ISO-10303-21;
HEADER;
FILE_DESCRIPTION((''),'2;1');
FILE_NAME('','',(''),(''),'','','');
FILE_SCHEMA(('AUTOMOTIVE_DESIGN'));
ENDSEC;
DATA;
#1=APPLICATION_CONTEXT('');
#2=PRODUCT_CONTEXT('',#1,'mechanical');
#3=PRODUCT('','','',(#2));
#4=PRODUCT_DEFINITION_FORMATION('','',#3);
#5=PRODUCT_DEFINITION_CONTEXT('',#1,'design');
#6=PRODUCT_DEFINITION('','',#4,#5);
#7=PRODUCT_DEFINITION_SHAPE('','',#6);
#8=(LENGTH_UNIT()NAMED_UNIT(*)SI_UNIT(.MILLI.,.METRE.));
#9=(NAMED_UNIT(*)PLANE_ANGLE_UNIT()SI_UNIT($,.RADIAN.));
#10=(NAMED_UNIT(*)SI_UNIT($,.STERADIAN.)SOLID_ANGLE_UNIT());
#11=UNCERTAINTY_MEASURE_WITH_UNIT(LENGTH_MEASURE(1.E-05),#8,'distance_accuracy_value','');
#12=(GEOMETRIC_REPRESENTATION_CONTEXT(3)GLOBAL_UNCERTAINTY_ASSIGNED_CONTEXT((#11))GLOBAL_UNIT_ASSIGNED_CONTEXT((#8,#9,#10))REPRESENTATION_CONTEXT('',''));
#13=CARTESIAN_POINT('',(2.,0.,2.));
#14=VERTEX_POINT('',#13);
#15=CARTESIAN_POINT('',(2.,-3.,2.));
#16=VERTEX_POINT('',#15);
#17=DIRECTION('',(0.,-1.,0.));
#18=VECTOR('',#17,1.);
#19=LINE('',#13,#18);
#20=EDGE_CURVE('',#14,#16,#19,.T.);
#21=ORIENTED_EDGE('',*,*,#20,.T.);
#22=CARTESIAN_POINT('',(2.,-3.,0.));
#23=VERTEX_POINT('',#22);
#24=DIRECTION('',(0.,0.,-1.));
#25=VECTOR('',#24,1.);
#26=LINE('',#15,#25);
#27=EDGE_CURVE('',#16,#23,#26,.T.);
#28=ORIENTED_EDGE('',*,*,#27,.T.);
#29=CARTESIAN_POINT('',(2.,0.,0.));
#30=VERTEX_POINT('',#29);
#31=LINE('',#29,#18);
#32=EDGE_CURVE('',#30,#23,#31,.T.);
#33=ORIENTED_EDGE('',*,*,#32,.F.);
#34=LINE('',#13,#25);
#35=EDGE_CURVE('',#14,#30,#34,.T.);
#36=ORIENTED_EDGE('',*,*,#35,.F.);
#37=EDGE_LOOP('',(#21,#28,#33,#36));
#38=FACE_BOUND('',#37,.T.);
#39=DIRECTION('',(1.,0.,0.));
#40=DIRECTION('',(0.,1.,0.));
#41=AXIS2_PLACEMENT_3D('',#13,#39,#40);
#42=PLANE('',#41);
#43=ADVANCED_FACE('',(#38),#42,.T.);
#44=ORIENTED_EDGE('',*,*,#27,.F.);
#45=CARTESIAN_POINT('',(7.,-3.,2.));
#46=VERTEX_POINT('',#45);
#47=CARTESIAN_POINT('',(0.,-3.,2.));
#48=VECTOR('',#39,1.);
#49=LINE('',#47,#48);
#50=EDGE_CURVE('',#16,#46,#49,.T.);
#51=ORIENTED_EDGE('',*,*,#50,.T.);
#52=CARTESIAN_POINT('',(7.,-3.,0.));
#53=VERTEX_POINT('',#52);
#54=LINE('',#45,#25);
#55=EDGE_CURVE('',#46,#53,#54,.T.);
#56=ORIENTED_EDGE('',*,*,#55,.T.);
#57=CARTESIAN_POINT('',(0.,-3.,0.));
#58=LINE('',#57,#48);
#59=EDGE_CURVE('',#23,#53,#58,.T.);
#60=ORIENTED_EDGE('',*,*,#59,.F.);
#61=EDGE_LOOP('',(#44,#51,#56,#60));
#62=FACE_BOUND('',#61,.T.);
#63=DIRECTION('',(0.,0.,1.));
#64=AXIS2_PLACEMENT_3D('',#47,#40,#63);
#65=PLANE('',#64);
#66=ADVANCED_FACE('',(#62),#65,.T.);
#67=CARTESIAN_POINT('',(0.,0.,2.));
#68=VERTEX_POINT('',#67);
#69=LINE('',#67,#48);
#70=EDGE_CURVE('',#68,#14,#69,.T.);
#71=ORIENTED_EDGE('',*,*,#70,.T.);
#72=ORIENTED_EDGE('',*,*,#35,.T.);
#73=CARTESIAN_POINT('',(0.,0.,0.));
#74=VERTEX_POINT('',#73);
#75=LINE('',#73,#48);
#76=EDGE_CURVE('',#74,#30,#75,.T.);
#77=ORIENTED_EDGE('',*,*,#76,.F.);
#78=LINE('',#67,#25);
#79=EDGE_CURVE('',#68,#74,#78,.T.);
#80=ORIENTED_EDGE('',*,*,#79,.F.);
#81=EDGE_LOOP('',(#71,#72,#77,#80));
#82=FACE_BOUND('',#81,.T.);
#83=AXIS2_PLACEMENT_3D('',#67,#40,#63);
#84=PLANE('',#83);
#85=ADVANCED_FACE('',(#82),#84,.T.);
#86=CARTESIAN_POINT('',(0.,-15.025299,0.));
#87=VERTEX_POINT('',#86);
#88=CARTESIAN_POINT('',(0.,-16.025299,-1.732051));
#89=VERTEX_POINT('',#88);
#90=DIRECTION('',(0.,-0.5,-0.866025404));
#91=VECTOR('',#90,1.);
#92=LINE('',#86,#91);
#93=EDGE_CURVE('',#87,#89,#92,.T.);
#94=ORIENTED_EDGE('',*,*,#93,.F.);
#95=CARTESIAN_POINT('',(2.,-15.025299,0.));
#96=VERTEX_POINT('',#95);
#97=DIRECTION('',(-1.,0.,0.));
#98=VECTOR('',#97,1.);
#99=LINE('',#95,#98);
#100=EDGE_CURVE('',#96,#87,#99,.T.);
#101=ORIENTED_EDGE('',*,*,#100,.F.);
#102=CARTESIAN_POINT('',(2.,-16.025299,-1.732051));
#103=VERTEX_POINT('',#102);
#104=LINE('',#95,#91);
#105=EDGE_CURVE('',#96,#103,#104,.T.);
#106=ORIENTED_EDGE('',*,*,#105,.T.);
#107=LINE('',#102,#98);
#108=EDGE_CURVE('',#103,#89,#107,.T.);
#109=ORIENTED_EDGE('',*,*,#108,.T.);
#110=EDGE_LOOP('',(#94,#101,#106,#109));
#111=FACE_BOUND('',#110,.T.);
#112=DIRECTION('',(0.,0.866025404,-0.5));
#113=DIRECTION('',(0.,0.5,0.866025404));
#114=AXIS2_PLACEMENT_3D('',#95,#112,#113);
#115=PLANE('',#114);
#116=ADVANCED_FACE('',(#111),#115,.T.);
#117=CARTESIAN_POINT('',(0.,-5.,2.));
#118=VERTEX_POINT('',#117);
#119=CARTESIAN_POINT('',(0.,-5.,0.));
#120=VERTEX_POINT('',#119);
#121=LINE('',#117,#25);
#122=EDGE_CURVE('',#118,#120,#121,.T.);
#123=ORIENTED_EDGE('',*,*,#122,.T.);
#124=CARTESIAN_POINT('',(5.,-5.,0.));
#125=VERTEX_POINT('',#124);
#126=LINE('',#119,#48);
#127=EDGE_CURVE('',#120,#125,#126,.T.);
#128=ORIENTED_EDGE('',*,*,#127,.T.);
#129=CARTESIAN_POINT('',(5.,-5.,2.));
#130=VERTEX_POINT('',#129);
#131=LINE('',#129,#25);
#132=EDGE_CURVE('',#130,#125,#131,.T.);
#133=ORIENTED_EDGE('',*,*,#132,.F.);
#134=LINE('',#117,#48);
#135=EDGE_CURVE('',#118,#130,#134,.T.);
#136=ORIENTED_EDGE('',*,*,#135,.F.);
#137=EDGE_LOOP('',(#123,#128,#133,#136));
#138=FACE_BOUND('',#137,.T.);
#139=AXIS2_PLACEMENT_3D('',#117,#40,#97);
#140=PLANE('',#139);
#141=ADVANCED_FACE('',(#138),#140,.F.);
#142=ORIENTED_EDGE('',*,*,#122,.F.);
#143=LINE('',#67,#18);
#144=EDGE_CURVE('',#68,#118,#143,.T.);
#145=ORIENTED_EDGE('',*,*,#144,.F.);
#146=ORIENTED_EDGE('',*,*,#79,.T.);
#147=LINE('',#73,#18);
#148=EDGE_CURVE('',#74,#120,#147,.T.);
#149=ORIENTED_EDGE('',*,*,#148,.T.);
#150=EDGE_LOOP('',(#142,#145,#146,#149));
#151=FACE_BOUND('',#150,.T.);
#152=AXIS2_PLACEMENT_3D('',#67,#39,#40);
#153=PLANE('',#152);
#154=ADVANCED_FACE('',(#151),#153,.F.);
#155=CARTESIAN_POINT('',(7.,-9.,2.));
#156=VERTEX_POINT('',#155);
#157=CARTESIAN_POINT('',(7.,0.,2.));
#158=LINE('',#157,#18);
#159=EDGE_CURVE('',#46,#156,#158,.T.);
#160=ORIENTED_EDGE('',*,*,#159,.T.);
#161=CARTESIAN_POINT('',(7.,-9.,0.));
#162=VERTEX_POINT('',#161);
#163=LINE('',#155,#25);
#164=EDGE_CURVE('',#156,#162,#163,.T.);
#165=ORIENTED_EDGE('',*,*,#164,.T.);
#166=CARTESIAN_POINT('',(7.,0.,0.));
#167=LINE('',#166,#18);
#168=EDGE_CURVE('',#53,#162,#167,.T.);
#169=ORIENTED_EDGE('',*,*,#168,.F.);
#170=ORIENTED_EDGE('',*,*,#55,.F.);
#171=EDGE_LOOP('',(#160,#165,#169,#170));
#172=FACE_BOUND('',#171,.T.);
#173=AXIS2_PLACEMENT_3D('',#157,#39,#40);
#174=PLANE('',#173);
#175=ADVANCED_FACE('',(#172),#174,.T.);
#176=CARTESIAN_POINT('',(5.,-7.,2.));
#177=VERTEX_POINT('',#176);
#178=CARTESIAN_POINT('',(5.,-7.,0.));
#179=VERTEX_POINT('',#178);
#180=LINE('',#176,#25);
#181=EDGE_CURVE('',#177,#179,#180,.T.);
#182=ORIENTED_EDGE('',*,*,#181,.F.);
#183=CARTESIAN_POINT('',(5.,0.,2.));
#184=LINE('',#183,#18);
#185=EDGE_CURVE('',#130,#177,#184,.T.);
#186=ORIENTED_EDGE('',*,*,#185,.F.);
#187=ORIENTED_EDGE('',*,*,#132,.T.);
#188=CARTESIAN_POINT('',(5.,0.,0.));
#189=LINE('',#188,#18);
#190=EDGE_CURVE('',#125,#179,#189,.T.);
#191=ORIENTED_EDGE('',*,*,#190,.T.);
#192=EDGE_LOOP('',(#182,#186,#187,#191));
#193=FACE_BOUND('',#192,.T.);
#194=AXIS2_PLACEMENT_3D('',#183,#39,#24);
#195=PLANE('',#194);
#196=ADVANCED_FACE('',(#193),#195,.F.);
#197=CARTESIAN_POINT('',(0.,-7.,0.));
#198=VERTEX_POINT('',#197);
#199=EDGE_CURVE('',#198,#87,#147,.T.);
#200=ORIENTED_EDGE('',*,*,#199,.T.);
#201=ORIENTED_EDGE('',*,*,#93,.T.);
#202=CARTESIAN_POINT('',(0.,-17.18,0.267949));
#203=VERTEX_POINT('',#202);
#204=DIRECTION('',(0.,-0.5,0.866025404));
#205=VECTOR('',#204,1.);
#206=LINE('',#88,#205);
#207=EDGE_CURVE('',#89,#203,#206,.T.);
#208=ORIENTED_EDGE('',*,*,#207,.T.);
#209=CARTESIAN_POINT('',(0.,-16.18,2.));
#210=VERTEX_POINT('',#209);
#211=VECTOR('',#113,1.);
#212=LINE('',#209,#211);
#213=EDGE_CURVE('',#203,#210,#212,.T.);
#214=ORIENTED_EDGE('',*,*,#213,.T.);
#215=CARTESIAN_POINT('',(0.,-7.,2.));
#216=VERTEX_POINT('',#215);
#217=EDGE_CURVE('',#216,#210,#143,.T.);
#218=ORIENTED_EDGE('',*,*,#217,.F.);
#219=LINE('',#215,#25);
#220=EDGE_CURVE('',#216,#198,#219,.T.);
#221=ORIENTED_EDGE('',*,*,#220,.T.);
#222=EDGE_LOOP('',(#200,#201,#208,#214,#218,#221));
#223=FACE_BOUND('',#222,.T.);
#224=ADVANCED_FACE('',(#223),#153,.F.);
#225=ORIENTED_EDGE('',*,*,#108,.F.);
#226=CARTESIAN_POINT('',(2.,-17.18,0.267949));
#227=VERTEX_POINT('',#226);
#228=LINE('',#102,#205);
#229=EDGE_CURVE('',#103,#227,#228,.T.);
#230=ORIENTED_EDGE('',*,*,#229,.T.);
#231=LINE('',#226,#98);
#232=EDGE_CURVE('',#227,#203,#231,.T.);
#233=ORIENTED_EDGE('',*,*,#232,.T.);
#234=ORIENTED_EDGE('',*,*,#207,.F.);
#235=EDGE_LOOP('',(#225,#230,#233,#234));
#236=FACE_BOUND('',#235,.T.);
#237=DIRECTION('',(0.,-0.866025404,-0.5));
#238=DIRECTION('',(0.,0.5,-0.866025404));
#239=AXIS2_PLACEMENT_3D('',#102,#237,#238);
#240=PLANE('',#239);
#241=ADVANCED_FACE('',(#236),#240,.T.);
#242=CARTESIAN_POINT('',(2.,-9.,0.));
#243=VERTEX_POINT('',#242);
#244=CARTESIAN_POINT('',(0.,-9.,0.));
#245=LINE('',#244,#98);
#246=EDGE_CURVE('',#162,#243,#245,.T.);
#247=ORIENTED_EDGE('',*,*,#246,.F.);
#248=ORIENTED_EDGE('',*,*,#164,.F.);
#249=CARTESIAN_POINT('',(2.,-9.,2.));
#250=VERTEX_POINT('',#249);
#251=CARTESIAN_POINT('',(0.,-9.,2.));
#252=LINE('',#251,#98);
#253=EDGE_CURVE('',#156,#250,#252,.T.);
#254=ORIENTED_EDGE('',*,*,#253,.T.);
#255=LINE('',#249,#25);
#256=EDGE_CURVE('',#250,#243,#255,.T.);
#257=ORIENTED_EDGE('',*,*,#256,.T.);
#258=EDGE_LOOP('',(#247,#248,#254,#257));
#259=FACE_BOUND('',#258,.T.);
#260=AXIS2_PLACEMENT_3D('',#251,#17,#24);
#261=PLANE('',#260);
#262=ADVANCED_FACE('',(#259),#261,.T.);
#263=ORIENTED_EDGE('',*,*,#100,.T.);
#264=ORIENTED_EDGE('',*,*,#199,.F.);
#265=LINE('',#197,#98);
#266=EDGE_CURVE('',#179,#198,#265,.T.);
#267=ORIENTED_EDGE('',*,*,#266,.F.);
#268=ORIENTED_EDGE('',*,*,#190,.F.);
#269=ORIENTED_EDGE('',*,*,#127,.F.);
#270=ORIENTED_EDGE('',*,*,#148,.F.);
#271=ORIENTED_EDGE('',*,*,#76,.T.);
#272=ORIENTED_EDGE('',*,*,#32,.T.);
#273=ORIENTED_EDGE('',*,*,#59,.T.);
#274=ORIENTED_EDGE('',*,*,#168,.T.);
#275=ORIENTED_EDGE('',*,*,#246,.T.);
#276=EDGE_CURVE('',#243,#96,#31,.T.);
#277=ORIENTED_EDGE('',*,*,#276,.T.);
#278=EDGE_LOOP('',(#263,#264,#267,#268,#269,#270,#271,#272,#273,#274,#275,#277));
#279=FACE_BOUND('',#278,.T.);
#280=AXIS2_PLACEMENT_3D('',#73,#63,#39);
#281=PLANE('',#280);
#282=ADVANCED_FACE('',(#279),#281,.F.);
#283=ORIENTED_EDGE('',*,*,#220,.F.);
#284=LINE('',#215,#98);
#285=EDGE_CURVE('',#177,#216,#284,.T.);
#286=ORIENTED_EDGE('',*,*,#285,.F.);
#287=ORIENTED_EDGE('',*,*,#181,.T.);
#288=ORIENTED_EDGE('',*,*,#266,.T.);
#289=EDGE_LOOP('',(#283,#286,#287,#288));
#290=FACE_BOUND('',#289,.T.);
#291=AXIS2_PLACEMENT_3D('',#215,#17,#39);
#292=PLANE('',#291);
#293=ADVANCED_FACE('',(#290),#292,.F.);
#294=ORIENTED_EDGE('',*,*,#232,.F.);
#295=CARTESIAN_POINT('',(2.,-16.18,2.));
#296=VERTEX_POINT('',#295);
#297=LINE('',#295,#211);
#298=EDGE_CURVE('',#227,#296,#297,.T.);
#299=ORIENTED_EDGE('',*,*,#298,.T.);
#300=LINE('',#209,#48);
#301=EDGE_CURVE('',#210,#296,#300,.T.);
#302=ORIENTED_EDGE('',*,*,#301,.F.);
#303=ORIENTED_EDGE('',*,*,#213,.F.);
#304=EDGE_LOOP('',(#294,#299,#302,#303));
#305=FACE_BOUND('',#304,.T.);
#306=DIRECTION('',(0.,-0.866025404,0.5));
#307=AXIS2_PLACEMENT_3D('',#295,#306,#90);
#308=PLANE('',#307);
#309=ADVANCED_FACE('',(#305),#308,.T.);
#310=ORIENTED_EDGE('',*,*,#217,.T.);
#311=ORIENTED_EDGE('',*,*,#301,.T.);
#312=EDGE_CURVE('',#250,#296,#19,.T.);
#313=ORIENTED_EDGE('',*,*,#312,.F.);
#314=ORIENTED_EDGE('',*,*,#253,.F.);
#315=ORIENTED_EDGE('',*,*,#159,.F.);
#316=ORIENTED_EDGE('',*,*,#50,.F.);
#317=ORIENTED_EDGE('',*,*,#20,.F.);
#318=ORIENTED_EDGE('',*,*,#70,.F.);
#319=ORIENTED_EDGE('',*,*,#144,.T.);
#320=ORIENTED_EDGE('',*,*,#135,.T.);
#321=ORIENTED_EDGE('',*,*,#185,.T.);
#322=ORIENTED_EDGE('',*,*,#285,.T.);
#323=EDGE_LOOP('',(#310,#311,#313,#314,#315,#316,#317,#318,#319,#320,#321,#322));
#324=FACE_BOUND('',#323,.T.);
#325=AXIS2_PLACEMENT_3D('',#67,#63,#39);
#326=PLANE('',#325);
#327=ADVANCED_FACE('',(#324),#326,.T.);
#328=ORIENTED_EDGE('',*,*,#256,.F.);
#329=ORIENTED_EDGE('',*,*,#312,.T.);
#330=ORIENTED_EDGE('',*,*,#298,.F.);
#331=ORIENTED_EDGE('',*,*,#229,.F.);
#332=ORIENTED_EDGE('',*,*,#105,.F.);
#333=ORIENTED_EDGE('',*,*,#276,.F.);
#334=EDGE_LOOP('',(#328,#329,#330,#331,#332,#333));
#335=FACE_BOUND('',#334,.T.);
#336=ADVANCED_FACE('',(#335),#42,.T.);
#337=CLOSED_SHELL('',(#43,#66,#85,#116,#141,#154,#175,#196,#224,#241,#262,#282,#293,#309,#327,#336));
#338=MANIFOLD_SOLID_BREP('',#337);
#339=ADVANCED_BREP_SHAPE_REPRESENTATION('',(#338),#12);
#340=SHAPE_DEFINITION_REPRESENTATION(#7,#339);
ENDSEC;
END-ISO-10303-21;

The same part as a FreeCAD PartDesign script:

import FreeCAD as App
import Part
import Sketcher

V = App.Vector
Q = App.Units.Quantity

doc = App.newDocument("Part")
body = doc.addObject("PartDesign::Body", "Body")

sketch1 = doc.addObject("Sketcher::SketchObject", "Sketch")
body.addObject(sketch1)
sketch1.AttachmentSupport = (doc.XY_Plane, [""])
sketch1.MapMode = "FlatFace"
sketch1.addGeometry([
    Part.LineSegment(V(0, -16.18, 0), V(2, -16.18, 0)),
    Part.LineSegment(V(2, -16.18, 0), V(2, -9, 0)),
    Part.LineSegment(V(2, -9, 0), V(7, -9, 0)),
    Part.LineSegment(V(7, -9, 0), V(7, -3, 0)),
    Part.LineSegment(V(7, -3, 0), V(2, -3, 0)),
    Part.LineSegment(V(2, -3, 0), V(2, 0, 0)),
    Part.LineSegment(V(2, 0, 0), V(0, 0, 0)),
    Part.LineSegment(V(0, 0, 0), V(0, -5, 0)),
    Part.LineSegment(V(0, -5, 0), V(5, -5, 0)),
    Part.LineSegment(V(5, -5, 0), V(5, -7, 0)),
    Part.LineSegment(V(5, -7, 0), V(0, -7, 0)),
    Part.LineSegment(V(0, -7, 0), V(0, -16.18, 0)),
], False)
sketch1.addConstraint([
    Sketcher.Constraint("Coincident", 0, 2, 1, 1),
    Sketcher.Constraint("Coincident", 1, 2, 2, 1),
    Sketcher.Constraint("Coincident", 2, 2, 3, 1),
    Sketcher.Constraint("Coincident", 3, 2, 4, 1),
    Sketcher.Constraint("Coincident", 4, 2, 5, 1),
    Sketcher.Constraint("Coincident", 5, 2, 6, 1),
    Sketcher.Constraint("Coincident", 6, 2, 7, 1),
    Sketcher.Constraint("Coincident", 7, 2, 8, 1),
    Sketcher.Constraint("Coincident", 8, 2, 9, 1),
    Sketcher.Constraint("Coincident", 9, 2, 10, 1),
    Sketcher.Constraint("Coincident", 10, 2, 11, 1),
    Sketcher.Constraint("Coincident", 11, 2, 0, 1),
    Sketcher.Constraint("Horizontal", 0),
    Sketcher.Constraint("Vertical", 1),
    Sketcher.Constraint("Horizontal", 2),
    Sketcher.Constraint("Vertical", 3),
    Sketcher.Constraint("Horizontal", 4),
    Sketcher.Constraint("Vertical", 5),
    Sketcher.Constraint("Horizontal", 6),
    Sketcher.Constraint("Vertical", 7),
    Sketcher.Constraint("Horizontal", 8),
    Sketcher.Constraint("Vertical", 9),
    Sketcher.Constraint("Horizontal", 10),
    Sketcher.Constraint("Vertical", 11),
    Sketcher.Constraint("Coincident", 6, 2, -1, 1),
    Sketcher.Constraint("PointOnObject", 10, 2, -2),
    Sketcher.Constraint("Vertical", 1, 2, 4, 2),
    Sketcher.Constraint("Equal", 4, 8),
    Sketcher.Constraint("Equal", 10, 7),
    Sketcher.Constraint("Equal", 6, 9),
    Sketcher.Constraint("DistanceX", 0, 1, 0, 2, Q("2 mm")),
    Sketcher.Constraint("DistanceX", 2, 1, 2, 2, Q("5 mm")),
    Sketcher.Constraint("DistanceY", 3, 1, 3, 2, Q("6 mm")),
    Sketcher.Constraint("DistanceY", 5, 1, 5, 2, Q("3 mm")),
    Sketcher.Constraint("DistanceY", 1, 1, 1, 2, Q("7.18 mm")),
])
pad1 = doc.addObject("PartDesign::Pad", "Pad")
body.addObject(pad1)
pad1.Profile = sketch1
pad1.Length = 2

sketch2 = doc.addObject("Sketcher::SketchObject", "Sketch001")
body.addObject(sketch2)
sketch2.AttachmentSupport = (doc.YZ_Plane, [""])
sketch2.MapMode = "FlatFace"
sketch2.addGeometry([
    Part.LineSegment(V(-17.18, 0.267949, 0), V(-16.18, 2, 0)),
    Part.LineSegment(V(-16.18, 2, 0), V(-15.025299, 0, 0)),
    Part.LineSegment(V(-15.025299, 0, 0), V(-16.025299, -1.732051, 0)),
    Part.LineSegment(V(-16.025299, -1.732051, 0), V(-17.18, 0.267949, 0)),
], False)
sketch2.addConstraint([
    Sketcher.Constraint("Coincident", 0, 2, 1, 1),
    Sketcher.Constraint("Coincident", 1, 2, 2, 1),
    Sketcher.Constraint("Coincident", 2, 2, 3, 1),
    Sketcher.Constraint("Coincident", 3, 2, 0, 1),
    Sketcher.Constraint("PointOnObject", 1, 2, -1),
    Sketcher.Constraint("Parallel", 0, 2),
    Sketcher.Constraint("Parallel", 1, 3),
    Sketcher.Constraint("Angle", 0, Q("60 deg")),
    Sketcher.Constraint("Angle", 1, Q("-60 deg")),
    Sketcher.Constraint("Distance", 0, Q("2 mm")),
    Sketcher.Constraint("DistanceY", -1, 1, 0, 2, Q("2 mm")),
    Sketcher.Constraint("DistanceX", 0, 2, -1, 1, Q("16.18 mm")),
])
pad2 = doc.addObject("PartDesign::Pad", "Pad001")
body.addObject(pad2)
pad2.Profile = sketch2
pad2.Length = 2

doc.recompute()
